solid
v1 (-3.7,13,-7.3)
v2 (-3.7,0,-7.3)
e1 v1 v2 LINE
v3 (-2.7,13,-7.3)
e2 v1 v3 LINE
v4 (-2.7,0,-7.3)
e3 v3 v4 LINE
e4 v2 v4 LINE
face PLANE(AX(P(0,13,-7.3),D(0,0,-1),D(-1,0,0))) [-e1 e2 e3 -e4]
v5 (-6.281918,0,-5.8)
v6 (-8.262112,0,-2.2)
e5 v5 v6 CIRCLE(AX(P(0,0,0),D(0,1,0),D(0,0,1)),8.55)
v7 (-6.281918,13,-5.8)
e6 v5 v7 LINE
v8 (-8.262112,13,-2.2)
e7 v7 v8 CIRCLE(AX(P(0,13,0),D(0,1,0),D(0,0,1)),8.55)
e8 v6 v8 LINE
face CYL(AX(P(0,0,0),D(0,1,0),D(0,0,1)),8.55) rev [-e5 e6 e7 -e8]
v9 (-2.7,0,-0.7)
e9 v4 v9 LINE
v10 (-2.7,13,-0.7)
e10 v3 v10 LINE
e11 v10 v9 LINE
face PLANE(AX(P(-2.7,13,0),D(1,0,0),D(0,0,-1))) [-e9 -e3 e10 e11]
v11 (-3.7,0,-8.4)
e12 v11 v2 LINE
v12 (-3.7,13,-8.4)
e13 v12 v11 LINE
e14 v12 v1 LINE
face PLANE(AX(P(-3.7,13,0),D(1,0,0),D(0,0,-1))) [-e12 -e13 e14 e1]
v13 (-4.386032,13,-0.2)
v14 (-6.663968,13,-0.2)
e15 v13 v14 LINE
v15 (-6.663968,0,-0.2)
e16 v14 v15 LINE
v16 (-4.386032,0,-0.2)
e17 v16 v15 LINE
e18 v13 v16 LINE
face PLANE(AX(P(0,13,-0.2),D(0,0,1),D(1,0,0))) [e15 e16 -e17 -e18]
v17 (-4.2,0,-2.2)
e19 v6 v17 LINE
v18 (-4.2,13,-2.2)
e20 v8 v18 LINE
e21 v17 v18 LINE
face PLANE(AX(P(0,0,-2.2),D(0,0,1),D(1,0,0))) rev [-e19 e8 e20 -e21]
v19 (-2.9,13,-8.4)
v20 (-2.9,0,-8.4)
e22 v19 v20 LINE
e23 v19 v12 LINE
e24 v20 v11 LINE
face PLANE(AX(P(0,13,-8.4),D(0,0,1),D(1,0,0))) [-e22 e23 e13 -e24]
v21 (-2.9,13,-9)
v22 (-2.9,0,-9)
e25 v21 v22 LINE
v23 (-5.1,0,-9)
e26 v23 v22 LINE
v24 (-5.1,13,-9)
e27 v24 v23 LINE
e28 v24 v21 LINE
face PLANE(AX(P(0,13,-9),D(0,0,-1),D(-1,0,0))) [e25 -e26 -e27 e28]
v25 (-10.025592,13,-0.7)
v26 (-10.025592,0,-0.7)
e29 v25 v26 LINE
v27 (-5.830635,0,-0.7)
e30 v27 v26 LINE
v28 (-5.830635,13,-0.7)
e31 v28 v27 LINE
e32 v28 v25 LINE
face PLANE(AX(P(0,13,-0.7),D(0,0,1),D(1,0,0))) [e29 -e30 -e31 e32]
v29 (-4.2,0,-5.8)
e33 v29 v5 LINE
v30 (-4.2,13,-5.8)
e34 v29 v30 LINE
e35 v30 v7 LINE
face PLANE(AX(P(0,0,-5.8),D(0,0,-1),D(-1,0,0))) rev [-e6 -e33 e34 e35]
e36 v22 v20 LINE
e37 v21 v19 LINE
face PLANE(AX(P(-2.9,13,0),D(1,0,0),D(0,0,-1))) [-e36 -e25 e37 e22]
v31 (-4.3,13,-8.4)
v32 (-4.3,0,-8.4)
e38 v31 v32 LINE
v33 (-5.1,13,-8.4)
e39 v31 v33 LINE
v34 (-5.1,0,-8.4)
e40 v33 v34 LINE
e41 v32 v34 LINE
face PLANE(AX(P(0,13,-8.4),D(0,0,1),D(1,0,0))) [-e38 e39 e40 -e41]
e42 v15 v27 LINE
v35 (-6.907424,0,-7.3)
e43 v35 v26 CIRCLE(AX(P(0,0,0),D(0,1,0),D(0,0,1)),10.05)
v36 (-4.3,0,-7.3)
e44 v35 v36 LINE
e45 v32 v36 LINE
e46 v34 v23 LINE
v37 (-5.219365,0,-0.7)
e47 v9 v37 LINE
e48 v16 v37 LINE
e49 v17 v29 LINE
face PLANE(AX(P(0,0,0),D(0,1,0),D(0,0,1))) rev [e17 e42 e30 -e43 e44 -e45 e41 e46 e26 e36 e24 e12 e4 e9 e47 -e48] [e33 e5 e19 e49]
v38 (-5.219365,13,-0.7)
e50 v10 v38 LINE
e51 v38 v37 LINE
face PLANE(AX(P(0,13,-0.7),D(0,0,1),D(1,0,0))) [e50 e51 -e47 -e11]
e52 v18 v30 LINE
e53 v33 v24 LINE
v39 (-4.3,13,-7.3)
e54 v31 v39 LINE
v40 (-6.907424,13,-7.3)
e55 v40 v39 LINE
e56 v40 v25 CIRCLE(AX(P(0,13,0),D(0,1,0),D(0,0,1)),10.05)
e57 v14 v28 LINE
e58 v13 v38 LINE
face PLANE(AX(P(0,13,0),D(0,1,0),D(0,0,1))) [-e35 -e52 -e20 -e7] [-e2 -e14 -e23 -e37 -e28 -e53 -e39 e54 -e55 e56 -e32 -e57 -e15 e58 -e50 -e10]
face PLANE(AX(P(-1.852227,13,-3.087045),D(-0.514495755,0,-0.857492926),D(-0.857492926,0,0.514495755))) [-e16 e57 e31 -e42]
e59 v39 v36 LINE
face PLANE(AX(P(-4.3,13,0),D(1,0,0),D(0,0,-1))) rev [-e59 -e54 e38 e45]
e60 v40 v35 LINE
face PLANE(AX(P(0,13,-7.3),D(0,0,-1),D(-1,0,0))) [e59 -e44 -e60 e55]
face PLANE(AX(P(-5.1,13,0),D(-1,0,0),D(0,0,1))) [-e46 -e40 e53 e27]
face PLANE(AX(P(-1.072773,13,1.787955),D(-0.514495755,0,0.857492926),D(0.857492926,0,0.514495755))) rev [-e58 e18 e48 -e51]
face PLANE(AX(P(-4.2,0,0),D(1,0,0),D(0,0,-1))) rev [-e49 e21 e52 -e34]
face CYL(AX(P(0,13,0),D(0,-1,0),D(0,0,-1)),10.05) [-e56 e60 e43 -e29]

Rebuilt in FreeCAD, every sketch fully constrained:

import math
import FreeCAD as App
import Part
import Sketcher

doc = App.newDocument("Part")
body = doc.addObject("PartDesign::Body", "Body")

# Sketch on XZ plane
sketch1 = doc.addObject("Sketcher::SketchObject", "Sketch")
body.addObject(sketch1)
sketch1.AttachmentSupport = (doc.XZ_Plane, [""])
sketch1.MapMode = "FlatFace"
sketch1.addGeometry([
    Part.LineSegment(App.Vector(-2.7, -0.7, 0), App.Vector(-2.7, -7.3, 0)),  # 0
    Part.LineSegment(App.Vector(-2.7, -7.3, 0), App.Vector(-3.7, -7.3, 0)),  # 1
    Part.LineSegment(App.Vector(-3.7, -7.3, 0), App.Vector(-3.7, -8.4, 0)),  # 2
    Part.LineSegment(App.Vector(-3.7, -8.4, 0), App.Vector(-2.9, -8.4, 0)),  # 3
    Part.LineSegment(App.Vector(-2.9, -8.4, 0), App.Vector(-2.9, -9, 0)),  # 4
    Part.LineSegment(App.Vector(-2.9, -9, 0), App.Vector(-5.1, -9, 0)),  # 5
    Part.LineSegment(App.Vector(-5.1, -9, 0), App.Vector(-5.1, -8.4, 0)),  # 6
    Part.LineSegment(App.Vector(-5.1, -8.4, 0), App.Vector(-4.3, -8.4, 0)),  # 7
    Part.LineSegment(App.Vector(-4.3, -8.4, 0), App.Vector(-4.3, -7.3, 0)),  # 8
    Part.LineSegment(App.Vector(-4.3, -7.3, 0), App.Vector(-6.91, -7.3, 0)),  # 9
    Part.ArcOfCircle(Part.Circle(App.Vector(0, 0, 0), App.Vector(0, 0, 1), 10.05), math.radians(-176), math.radians(-133)),  # 10
    Part.LineSegment(App.Vector(-10.03, -0.7, 0), App.Vector(-5.83, -0.7, 0)),  # 11
    Part.LineSegment(App.Vector(-5.83, -0.7, 0), App.Vector(-5.97, -0.61, 0)),  # 12
    Part.LineSegment(App.Vector(-5.97, -0.61, 0), App.Vector(-6.16, -0.5, 0)),  # 13
    Part.LineSegment(App.Vector(-6.16, -0.5, 0), App.Vector(-6.47, -0.31, 0)),  # 14
    Part.LineSegment(App.Vector(-6.47, -0.31, 0), App.Vector(-6.66, -0.2, 0)),  # 15
    Part.LineSegment(App.Vector(-6.66, -0.2, 0), App.Vector(-4.39, -0.2, 0)),  # 16
    Part.LineSegment(App.Vector(-4.39, -0.2, 0), App.Vector(-4.58, -0.31, 0)),  # 17
    Part.LineSegment(App.Vector(-4.58, -0.31, 0), App.Vector(-4.89, -0.5, 0)),  # 18
    Part.LineSegment(App.Vector(-4.89, -0.5, 0), App.Vector(-5.08, -0.61, 0)),  # 19
    Part.LineSegment(App.Vector(-5.08, -0.61, 0), App.Vector(-5.22, -0.7, 0)),  # 20
    Part.LineSegment(App.Vector(-5.22, -0.7, 0), App.Vector(-2.7, -0.7, 0)),  # 21
], False)
sketch1.addConstraint([
    Sketcher.Constraint("Coincident", 0, 2, 1, 1),
    Sketcher.Constraint("Coincident", 1, 2, 2, 1),
    Sketcher.Constraint("Coincident", 2, 2, 3, 1),
    Sketcher.Constraint("Coincident", 3, 2, 4, 1),
    Sketcher.Constraint("Coincident", 4, 2, 5, 1),
    Sketcher.Constraint("Coincident", 5, 2, 6, 1),
    Sketcher.Constraint("Coincident", 6, 2, 7, 1),
    Sketcher.Constraint("Coincident", 7, 2, 8, 1),
    Sketcher.Constraint("Coincident", 8, 2, 9, 1),
    Sketcher.Constraint("Coincident", 9, 2, 10, 2),
    Sketcher.Constraint("Coincident", 10, 1, 11, 1),
    Sketcher.Constraint("Coincident", 11, 2, 12, 1),
    Sketcher.Constraint("Coincident", 12, 2, 13, 1),
    Sketcher.Constraint("Coincident", 13, 2, 14, 1),
    Sketcher.Constraint("Coincident", 14, 2, 15, 1),
    Sketcher.Constraint("Coincident", 15, 2, 16, 1),
    Sketcher.Constraint("Coincident", 16, 2, 17, 1),
    Sketcher.Constraint("Coincident", 17, 2, 18, 1),
    Sketcher.Constraint("Coincident", 18, 2, 19, 1),
    Sketcher.Constraint("Coincident", 19, 2, 20, 1),
    Sketcher.Constraint("Coincident", 20, 2, 21, 1),
    Sketcher.Constraint("Coincident", 21, 2, 0, 1),
    Sketcher.Constraint("Vertical", 0),
    Sketcher.Constraint("Horizontal", 1),
    Sketcher.Constraint("Vertical", 2),
    Sketcher.Constraint("Horizontal", 3),
    Sketcher.Constraint("Vertical", 4),
    Sketcher.Constraint("Horizontal", 5),
    Sketcher.Constraint("Vertical", 6),
    Sketcher.Constraint("Horizontal", 7),
    Sketcher.Constraint("Vertical", 8),
    Sketcher.Constraint("Horizontal", 9),
    Sketcher.Constraint("Horizontal", 11),
    Sketcher.Constraint("Horizontal", 16),
    Sketcher.Constraint("Horizontal", 21),
    Sketcher.Constraint("Coincident", 10, 3, -1, 1),
    Sketcher.Constraint("Parallel", 12, 13),
    Sketcher.Constraint("Parallel", 13, 14),
    Sketcher.Constraint("Parallel", 14, 15),
    Sketcher.Constraint("Parallel", 17, 18),
    Sketcher.Constraint("Parallel", 18, 19),
    Sketcher.Constraint("Parallel", 19, 20),
    Sketcher.Constraint("Horizontal", 3, 2, 6, 2),
    Sketcher.Constraint("Horizontal", 1, 2, 8, 2),
    Sketcher.Constraint("Horizontal", 14, 2, 17, 2),
    Sketcher.Constraint("Horizontal", 13, 2, 18, 2),
    Sketcher.Constraint("Horizontal", 12, 2, 19, 2),
    Sketcher.Constraint("Horizontal", 11, 2, 20, 2),
    Sketcher.Constraint("Equal", 3, 7),
    Sketcher.Constraint("Equal", 13, 15),
    Sketcher.Constraint("Equal", 15, 17),
    Sketcher.Constraint("DistanceX", 1, 2, 1, 1, 1.0),
    Sketcher.Constraint("Radius", 10, 10.05),
    Sketcher.Constraint("DistanceX", 3, 1, 3, 2, 0.8),
    Sketcher.Constraint("DistanceX", 5, 2, 5, 1, 2.2),
    Sketcher.Constraint("DistanceY", 0, 2, 0, 1, 6.6),
    Sketcher.Constraint("DistanceY", 2, 2, 2, 1, 1.1),
    Sketcher.Constraint("DistanceY", 4, 2, 4, 1, 0.6),
    Sketcher.Constraint("DistanceY", 4, 2, -1, 1, 9.0),
    Sketcher.Constraint("DistanceX", 0, 2, -1, 1, 2.7),
    Sketcher.Constraint("DistanceY", 13, 2, -1, 1, 0.5),
    Sketcher.Constraint("DistanceY", 15, 2, -1, 1, 0.2),
    Sketcher.Constraint("DistanceX", 14, 2, 12, 2, 0.5),
    Sketcher.Constraint("DistanceX", 12, 2, 17, 2, 1.397101),
    Sketcher.Constraint("Distance", 14, 0.361032),
    Sketcher.Constraint("DistanceX", 11, 1, 11, 2, 4.194957),
])
pad1 = doc.addObject("PartDesign::Pad", "Pad")
body.addObject(pad1)
pad1.Profile = sketch1
pad1.Length = 13
pad1.Reversed = True

# Sketch on XZ plane
sketch2 = doc.addObject("Sketcher::SketchObject", "Sketch001")
body.addObject(sketch2)
sketch2.AttachmentSupport = (doc.XZ_Plane, [""])
sketch2.MapMode = "FlatFace"
sketch2.AttachmentOffset = App.Placement(App.Vector(0, 0, -13), App.Rotation())
sketch2.addGeometry([
    Part.LineSegment(App.Vector(-4.2, -5.8, 0), App.Vector(-6.3, -5.8, 0)),
    Part.ArcOfCircle(Part.Circle(App.Vector(0, 0, 0), App.Vector(0, 0, 1), 8.6), math.radians(-165), math.radians(-137)),
    Part.LineSegment(App.Vector(-8.3, -2.2, 0), App.Vector(-4.2, -2.2, 0)),
    Part.LineSegment(App.Vector(-4.2, -2.2, 0), App.Vector(-4.2, -5.8, 0)),
], False)
sketch2.addConstraint([
    Sketcher.Constraint("Coincident", 0, 2, 1, 2),
    Sketcher.Constraint("Coincident", 1, 1, 2, 1),
    Sketcher.Constraint("Coincident", 2, 2, 3, 1),
    Sketcher.Constraint("Coincident", 3, 2, 0, 1),
    Sketcher.Constraint("Horizontal", 0),
    Sketcher.Constraint("Horizontal", 2),
    Sketcher.Constraint("Vertical", 3),
    Sketcher.Constraint("Coincident", 1, 3, -1, 1),
    Sketcher.Constraint("Radius", 1, 8.55),
    Sketcher.Constraint("DistanceY", 3, 2, 3, 1, 3.6),
    Sketcher.Constraint("DistanceY", 0, 2, -1, 1, 5.8),
    Sketcher.Constraint("DistanceX", 2, 2, -1, 1, 4.2),
])
pocket1 = doc.addObject("PartDesign::Pocket", "Pocket")
body.addObject(pocket1)
pocket1.Profile = sketch2
pocket1.Type = "ThroughAll"
pocket1.Reversed = True

doc.recompute()
